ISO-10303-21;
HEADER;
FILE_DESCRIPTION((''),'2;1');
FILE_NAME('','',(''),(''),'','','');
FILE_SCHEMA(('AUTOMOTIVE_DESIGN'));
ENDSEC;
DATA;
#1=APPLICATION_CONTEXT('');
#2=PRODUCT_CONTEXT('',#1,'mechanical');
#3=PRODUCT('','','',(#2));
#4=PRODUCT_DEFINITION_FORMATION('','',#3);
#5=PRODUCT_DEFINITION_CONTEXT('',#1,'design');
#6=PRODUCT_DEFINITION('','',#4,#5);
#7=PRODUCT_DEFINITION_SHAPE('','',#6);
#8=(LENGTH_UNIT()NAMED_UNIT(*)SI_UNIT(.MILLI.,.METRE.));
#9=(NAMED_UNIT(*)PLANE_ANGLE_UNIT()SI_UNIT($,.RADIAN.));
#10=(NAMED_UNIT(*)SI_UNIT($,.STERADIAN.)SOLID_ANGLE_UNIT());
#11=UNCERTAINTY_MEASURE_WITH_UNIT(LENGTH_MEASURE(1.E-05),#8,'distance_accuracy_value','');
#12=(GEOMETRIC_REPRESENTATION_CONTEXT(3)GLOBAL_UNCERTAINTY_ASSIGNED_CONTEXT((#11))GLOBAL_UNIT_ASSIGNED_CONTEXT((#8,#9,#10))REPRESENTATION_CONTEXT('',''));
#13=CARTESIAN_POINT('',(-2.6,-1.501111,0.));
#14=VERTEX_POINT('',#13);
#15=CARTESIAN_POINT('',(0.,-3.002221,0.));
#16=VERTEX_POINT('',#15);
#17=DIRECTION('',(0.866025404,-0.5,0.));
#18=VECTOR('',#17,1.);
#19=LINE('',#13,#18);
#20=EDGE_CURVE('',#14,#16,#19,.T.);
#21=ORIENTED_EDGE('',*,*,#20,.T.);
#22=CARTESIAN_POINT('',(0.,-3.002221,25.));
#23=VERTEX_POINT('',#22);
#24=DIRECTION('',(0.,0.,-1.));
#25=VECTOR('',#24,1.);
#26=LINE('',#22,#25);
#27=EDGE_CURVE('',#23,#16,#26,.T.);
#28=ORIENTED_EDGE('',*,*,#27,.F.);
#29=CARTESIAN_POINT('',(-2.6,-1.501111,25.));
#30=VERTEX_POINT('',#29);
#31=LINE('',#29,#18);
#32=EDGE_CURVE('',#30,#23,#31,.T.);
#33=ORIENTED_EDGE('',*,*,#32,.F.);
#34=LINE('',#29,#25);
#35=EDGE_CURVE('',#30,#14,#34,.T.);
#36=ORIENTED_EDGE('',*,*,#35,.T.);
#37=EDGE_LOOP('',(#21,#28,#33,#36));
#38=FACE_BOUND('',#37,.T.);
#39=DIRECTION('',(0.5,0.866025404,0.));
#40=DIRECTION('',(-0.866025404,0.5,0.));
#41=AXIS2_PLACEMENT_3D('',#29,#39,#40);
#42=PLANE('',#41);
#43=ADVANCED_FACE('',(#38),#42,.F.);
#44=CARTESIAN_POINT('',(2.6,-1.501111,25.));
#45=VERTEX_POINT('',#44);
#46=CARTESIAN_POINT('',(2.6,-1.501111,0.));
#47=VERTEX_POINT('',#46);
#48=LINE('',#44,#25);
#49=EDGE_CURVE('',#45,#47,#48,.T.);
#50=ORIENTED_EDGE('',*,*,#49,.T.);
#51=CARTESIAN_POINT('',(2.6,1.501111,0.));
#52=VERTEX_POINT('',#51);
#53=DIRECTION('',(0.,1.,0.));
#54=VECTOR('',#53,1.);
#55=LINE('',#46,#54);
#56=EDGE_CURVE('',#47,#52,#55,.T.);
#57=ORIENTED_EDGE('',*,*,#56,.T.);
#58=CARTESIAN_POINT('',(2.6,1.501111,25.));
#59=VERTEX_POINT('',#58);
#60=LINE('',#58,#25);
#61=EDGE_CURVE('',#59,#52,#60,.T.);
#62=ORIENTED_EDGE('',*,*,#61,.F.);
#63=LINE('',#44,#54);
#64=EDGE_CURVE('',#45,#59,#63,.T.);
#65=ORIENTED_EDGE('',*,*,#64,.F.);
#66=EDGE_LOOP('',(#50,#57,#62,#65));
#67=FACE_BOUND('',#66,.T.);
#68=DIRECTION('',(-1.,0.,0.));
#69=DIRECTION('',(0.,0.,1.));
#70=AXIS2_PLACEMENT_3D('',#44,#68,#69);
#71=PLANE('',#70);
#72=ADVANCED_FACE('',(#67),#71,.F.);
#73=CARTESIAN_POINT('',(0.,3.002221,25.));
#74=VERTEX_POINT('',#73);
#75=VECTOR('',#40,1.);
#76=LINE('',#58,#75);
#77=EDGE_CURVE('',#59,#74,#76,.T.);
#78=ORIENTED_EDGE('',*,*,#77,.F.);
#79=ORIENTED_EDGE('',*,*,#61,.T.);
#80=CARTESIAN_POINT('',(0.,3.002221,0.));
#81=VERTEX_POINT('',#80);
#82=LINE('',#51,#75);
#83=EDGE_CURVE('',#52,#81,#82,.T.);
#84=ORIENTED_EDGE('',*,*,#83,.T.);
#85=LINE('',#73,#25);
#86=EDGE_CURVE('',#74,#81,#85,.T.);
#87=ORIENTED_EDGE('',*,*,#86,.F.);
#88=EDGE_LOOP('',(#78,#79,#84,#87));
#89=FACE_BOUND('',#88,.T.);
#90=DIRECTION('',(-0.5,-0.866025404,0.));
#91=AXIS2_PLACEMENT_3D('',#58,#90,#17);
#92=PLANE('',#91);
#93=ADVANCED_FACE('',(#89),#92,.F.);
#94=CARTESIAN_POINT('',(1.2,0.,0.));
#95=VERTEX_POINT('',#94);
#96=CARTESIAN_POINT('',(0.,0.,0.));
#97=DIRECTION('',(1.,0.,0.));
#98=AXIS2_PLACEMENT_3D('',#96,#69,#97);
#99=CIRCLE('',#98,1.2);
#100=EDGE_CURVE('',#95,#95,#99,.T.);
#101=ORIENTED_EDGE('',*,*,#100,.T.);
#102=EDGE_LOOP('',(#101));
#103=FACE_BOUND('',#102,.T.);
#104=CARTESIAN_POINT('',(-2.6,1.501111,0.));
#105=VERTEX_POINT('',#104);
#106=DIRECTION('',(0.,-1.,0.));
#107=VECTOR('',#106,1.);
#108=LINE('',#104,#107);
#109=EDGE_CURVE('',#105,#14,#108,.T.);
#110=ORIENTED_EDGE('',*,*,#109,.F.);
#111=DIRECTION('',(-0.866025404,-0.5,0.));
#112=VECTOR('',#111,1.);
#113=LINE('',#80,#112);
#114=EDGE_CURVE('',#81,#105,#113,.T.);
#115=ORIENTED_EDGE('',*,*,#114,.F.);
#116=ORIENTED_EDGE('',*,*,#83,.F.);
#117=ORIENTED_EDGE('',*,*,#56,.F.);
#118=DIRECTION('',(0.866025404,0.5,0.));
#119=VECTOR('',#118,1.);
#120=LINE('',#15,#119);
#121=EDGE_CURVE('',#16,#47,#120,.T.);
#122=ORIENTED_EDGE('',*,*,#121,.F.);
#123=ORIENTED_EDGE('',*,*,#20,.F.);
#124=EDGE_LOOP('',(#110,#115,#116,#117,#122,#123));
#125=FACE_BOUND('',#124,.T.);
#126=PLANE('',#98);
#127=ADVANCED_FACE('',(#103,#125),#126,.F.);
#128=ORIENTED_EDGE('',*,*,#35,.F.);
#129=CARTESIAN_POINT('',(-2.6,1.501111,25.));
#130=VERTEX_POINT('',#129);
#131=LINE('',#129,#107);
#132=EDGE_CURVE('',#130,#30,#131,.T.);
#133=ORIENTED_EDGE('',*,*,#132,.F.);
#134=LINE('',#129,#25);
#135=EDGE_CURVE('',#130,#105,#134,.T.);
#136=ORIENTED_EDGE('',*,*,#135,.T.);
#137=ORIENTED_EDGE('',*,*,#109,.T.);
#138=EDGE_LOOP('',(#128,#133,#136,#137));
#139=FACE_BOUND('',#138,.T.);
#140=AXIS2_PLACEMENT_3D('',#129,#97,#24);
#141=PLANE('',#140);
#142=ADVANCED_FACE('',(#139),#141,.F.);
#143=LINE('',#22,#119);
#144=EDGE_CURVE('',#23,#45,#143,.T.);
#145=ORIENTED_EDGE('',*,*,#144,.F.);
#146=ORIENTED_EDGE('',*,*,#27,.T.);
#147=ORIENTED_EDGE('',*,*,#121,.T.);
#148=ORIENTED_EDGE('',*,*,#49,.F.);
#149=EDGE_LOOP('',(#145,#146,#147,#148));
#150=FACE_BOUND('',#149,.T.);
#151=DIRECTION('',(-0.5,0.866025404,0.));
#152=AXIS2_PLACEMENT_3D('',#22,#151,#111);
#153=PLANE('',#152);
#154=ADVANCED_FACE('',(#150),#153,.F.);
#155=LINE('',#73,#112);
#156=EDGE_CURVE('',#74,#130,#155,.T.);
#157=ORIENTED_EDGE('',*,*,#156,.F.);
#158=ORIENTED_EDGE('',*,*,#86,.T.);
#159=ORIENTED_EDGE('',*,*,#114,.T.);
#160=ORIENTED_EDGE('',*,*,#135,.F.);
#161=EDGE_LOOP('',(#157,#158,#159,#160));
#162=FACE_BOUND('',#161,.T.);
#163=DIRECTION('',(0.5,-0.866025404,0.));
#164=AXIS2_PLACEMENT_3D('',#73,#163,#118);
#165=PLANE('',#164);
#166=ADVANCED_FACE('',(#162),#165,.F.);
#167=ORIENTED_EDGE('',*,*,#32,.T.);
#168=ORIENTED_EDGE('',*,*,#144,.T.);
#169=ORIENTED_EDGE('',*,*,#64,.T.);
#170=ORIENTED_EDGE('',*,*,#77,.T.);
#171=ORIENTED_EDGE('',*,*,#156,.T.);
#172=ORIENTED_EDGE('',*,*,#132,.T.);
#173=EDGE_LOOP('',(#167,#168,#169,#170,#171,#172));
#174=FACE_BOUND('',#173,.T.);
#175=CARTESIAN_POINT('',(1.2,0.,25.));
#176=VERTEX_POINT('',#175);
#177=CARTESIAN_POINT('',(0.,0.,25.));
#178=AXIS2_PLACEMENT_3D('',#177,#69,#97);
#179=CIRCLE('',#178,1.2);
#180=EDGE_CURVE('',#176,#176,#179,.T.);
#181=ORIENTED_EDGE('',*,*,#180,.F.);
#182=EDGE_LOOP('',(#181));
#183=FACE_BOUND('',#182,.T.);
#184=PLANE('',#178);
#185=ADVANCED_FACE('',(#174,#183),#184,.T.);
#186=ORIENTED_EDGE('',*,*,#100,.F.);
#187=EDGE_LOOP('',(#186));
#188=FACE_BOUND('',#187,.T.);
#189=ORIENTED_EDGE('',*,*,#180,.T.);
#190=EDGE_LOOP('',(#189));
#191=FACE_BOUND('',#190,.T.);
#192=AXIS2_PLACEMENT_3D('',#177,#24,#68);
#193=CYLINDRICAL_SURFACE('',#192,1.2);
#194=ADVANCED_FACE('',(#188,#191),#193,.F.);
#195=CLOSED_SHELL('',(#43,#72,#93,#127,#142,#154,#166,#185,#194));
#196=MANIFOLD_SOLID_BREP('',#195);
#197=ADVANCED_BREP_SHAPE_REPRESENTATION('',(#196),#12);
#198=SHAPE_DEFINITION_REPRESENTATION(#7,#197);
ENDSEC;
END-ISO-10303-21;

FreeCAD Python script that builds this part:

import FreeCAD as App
import Part
import Sketcher
Q = App.Units.Quantity


def add_polygon(sketch, points):
    """Adds a closed chain of lines whose ends are joined by coincident constraints."""
    first, n = sketch.GeometryCount, len(points)
    for a, b in zip(points, points[1:] + points[:1]):
        sketch.addGeometry(Part.LineSegment(App.Vector(*a, 0), App.Vector(*b, 0)), False)
    for i in range(n):
        sketch.addConstraint(Sketcher.Constraint("Coincident", first + i, 2, first + (i + 1) % n, 1))

doc = App.newDocument("Part")
params = doc.addObject("Spreadsheet::Sheet", "Params")
for row, (alias, value) in enumerate([
    ("sketch1_diameter", "2.4 mm"),
    ("pad1_length", "25 mm"),
], start=1):
    params.set(f"A{row}", alias)
    params.set(f"B{row}", "=" + value)
    params.setAlias(f"B{row}", alias)

body = doc.addObject("PartDesign::Body", "Body")

# Sketch on XY plane
sketch1 = body.newObject("Sketcher::SketchObject", "Sketch")
sketch1.AttachmentSupport = (doc.getObject("XY_Plane"), [""])
sketch1.MapMode = "FlatFace"
add_polygon(sketch1, [(-2.6, 1.5), (-2.6, -1.5), (0, -3), (2.6, -1.5), (2.6, 1.5), (0, 3)])  # lines 0-5
sketch1.addGeometry(Part.Circle(App.Vector(0, 0, 0), App.Vector(0, 0, 1), 1.2), False)  # 6
sketch1.addConstraint(Sketcher.Constraint("Vertical", 0))
sketch1.addConstraint(Sketcher.Constraint("Vertical", 3))
sketch1.addConstraint(Sketcher.Constraint("Coincident", 6, 3, -1, 1))
sketch1.addConstraint(Sketcher.Constraint("Symmetric", 0, 2, 3, 2, -1, 1))
sketch1.addConstraint(Sketcher.Constraint("Symmetric", 1, 2, 4, 2, -1, 1))
sketch1.addConstraint(Sketcher.Constraint("PointOnObject", 1, 2, -2))
sketch1.addConstraint(Sketcher.Constraint("Parallel", 2, 5))
sketch1.addConstraint(Sketcher.Constraint("Horizontal", 0, 2, 2, 2))
sketch1.addConstraint(Sketcher.Constraint("Diameter", 6, Q("2.4 mm")))
sketch1.addConstraint(Sketcher.Constraint("Angle", 1, Q("-30 deg")))
sketch1.addConstraint(Sketcher.Constraint("DistanceX", 0, 2, -1, 1, Q("2.6 mm")))
sketch1.addConstraint(Sketcher.Constraint("DistanceY", 0, 2, 0, 1, Q("3.002221 mm")))
sketch1.setExpression("Constraints[14]", "Params.sketch1_diameter")
pad1 = body.newObject("PartDesign::Pad", "Pad")
pad1.Profile = sketch1
pad1.setExpression("Length", "Params.pad1_length")

doc.recompute()
